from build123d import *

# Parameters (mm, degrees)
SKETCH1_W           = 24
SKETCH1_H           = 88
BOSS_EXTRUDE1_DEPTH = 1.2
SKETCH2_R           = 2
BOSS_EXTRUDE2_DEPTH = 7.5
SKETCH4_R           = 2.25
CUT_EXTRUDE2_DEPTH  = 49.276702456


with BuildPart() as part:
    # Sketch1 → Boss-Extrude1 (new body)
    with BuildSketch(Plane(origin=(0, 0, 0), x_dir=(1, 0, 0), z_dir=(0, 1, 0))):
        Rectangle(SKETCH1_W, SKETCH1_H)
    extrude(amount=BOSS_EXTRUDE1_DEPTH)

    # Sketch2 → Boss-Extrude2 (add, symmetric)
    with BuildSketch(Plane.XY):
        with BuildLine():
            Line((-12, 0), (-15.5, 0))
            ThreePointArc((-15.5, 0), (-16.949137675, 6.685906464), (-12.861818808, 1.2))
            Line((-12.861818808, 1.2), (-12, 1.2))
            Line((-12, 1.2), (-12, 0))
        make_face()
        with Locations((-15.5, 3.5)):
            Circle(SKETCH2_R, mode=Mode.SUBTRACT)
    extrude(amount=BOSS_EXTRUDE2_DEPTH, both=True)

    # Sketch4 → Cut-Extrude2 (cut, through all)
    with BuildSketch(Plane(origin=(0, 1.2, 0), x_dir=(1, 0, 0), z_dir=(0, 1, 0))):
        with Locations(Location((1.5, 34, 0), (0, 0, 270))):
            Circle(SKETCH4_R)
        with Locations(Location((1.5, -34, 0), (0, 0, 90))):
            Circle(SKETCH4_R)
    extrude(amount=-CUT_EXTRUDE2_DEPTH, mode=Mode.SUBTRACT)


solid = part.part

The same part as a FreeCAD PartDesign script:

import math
import FreeCAD as App
import Part
import Sketcher
from FreeCAD import Vector

doc = App.newDocument("Part")
body = doc.addObject("PartDesign::Body", "Body")

# Sketch on XZ plane
sketch1 = body.newObject("Sketcher::SketchObject", "Sketch")
sketch1.AttachmentSupport = (doc.getObject("XZ_Plane"), [""])
sketch1.MapMode = "FlatFace"
sketch1.addGeometry([
    Part.LineSegment(Vector(-12, -44, 0), Vector(-12, 44, 0)),
    Part.LineSegment(Vector(-12, 44, 0), Vector(12, 44, 0)),
    Part.LineSegment(Vector(12, 44, 0), Vector(12, -44, 0)),
    Part.LineSegment(Vector(12, -44, 0), Vector(-12, -44, 0)),
], False)
sketch1.addConstraint([
    Sketcher.Constraint("Coincident", 0, 2, 1, 1),
    Sketcher.Constraint("Coincident", 1, 2, 2, 1),
    Sketcher.Constraint("Coincident", 2, 2, 3, 1),
    Sketcher.Constraint("Coincident", 3, 2, 0, 1),
    Sketcher.Constraint("Vertical", 0),
    Sketcher.Constraint("Horizontal", 1),
    Sketcher.Constraint("Vertical", 2),
    Sketcher.Constraint("Horizontal", 3),
    Sketcher.Constraint("Symmetric", 0, 2, 2, 2, -1, 1),
    Sketcher.Constraint("DistanceX", 1, 1, 1, 2, 24.0),
    Sketcher.Constraint("DistanceY", 0, 1, 0, 2, 88.0),
])
pad1 = body.newObject("PartDesign::Pad", "Pad")
pad1.Profile = sketch1
pad1.Length = 1.2
pad1.Reversed = True

# Sketch on XY plane
sketch2 = body.newObject("Sketcher::SketchObject", "Sketch001")
sketch2.AttachmentSupport = (doc.getObject("XY_Plane"), [""])
sketch2.MapMode = "FlatFace"
sketch2.addGeometry([
    Part.LineSegment(Vector(-15.5, 0, 0), Vector(-12, 0, 0)),  # 0
    Part.LineSegment(Vector(-12, 0, 0), Vector(-12, 1.2, 0)),  # 1
    Part.LineSegment(Vector(-12, 1.2, 0), Vector(-12.9, 1.2, 0)),  # 2
    Part.ArcOfCircle(Part.Circle(Vector(-15.5, 3.5, 0), Vector(0, 0, 1), 3.5), math.radians(-41), math.radians(270)),  # 3
    Part.Circle(Vector(-15.5, 3.5, 0), Vector(0, 0, 1), 2),  # 4
], False)
sketch2.addConstraint([
    Sketcher.Constraint("Coincident", 0, 2, 1, 1),
    Sketcher.Constraint("Coincident", 1, 2, 2, 1),
    Sketcher.Constraint("Coincident", 2, 2, 3, 1),
    Sketcher.Constraint("Tangent", 3, 2, 0, 1),
    Sketcher.Constraint("Horizontal", 0),
    Sketcher.Constraint("Vertical", 1),
    Sketcher.Constraint("Horizontal", 2),
    Sketcher.Constraint("Coincident", 4, 3, 3, 3),
    Sketcher.Constraint("PointOnObject", 0, 2, -1),
    Sketcher.Constraint("Diameter", 4, 4.0),
    Sketcher.Constraint("Radius", 3, 3.5),
    Sketcher.Constraint("DistanceX", 0, 1, 0, 2, 3.5),
    Sketcher.Constraint("DistanceY", 1, 1, 1, 2, 1.2),
    Sketcher.Constraint("DistanceX", 0, 2, -1, 1, 12.0),
])
pad2 = body.newObject("PartDesign::Pad", "Pad001")
pad2.Profile = sketch2
pad2.Length = 15
pad2.Midplane = True

# Sketch on XZ plane
sketch3 = body.newObject("Sketcher::SketchObject", "Sketch002")
sketch3.AttachmentSupport = (doc.getObject("XZ_Plane"), [""])
sketch3.MapMode = "FlatFace"
sketch3.AttachmentOffset = App.Placement(Vector(0, 0, -1.2), App.Rotation())
sketch3.addGeometry([
    Part.Circle(Vector(1.5, -34, 0), Vector(0, 0, 1), 2.2),
    Part.Circle(Vector(1.5, 34, 0), Vector(0, 0, 1), 2.2),
], False)
sketch3.addConstraint([
    Sketcher.Constraint("Equal", 0, 1),
    Sketcher.Constraint("Symmetric", 0, 3, 1, 3, -1),
    Sketcher.Constraint("Diameter", 0, 4.5),
    Sketcher.Constraint("DistanceY", 0, 3, -1, 1, 34.0),
    Sketcher.Constraint("DistanceX", -1, 1, 0, 3, 1.5),
])
pocket1 = body.newObject("PartDesign::Pocket", "Pocket")
pocket1.Profile = sketch3
pocket1.Type = "ThroughAll"
pocket1.Reversed = True

doc.recompute()
